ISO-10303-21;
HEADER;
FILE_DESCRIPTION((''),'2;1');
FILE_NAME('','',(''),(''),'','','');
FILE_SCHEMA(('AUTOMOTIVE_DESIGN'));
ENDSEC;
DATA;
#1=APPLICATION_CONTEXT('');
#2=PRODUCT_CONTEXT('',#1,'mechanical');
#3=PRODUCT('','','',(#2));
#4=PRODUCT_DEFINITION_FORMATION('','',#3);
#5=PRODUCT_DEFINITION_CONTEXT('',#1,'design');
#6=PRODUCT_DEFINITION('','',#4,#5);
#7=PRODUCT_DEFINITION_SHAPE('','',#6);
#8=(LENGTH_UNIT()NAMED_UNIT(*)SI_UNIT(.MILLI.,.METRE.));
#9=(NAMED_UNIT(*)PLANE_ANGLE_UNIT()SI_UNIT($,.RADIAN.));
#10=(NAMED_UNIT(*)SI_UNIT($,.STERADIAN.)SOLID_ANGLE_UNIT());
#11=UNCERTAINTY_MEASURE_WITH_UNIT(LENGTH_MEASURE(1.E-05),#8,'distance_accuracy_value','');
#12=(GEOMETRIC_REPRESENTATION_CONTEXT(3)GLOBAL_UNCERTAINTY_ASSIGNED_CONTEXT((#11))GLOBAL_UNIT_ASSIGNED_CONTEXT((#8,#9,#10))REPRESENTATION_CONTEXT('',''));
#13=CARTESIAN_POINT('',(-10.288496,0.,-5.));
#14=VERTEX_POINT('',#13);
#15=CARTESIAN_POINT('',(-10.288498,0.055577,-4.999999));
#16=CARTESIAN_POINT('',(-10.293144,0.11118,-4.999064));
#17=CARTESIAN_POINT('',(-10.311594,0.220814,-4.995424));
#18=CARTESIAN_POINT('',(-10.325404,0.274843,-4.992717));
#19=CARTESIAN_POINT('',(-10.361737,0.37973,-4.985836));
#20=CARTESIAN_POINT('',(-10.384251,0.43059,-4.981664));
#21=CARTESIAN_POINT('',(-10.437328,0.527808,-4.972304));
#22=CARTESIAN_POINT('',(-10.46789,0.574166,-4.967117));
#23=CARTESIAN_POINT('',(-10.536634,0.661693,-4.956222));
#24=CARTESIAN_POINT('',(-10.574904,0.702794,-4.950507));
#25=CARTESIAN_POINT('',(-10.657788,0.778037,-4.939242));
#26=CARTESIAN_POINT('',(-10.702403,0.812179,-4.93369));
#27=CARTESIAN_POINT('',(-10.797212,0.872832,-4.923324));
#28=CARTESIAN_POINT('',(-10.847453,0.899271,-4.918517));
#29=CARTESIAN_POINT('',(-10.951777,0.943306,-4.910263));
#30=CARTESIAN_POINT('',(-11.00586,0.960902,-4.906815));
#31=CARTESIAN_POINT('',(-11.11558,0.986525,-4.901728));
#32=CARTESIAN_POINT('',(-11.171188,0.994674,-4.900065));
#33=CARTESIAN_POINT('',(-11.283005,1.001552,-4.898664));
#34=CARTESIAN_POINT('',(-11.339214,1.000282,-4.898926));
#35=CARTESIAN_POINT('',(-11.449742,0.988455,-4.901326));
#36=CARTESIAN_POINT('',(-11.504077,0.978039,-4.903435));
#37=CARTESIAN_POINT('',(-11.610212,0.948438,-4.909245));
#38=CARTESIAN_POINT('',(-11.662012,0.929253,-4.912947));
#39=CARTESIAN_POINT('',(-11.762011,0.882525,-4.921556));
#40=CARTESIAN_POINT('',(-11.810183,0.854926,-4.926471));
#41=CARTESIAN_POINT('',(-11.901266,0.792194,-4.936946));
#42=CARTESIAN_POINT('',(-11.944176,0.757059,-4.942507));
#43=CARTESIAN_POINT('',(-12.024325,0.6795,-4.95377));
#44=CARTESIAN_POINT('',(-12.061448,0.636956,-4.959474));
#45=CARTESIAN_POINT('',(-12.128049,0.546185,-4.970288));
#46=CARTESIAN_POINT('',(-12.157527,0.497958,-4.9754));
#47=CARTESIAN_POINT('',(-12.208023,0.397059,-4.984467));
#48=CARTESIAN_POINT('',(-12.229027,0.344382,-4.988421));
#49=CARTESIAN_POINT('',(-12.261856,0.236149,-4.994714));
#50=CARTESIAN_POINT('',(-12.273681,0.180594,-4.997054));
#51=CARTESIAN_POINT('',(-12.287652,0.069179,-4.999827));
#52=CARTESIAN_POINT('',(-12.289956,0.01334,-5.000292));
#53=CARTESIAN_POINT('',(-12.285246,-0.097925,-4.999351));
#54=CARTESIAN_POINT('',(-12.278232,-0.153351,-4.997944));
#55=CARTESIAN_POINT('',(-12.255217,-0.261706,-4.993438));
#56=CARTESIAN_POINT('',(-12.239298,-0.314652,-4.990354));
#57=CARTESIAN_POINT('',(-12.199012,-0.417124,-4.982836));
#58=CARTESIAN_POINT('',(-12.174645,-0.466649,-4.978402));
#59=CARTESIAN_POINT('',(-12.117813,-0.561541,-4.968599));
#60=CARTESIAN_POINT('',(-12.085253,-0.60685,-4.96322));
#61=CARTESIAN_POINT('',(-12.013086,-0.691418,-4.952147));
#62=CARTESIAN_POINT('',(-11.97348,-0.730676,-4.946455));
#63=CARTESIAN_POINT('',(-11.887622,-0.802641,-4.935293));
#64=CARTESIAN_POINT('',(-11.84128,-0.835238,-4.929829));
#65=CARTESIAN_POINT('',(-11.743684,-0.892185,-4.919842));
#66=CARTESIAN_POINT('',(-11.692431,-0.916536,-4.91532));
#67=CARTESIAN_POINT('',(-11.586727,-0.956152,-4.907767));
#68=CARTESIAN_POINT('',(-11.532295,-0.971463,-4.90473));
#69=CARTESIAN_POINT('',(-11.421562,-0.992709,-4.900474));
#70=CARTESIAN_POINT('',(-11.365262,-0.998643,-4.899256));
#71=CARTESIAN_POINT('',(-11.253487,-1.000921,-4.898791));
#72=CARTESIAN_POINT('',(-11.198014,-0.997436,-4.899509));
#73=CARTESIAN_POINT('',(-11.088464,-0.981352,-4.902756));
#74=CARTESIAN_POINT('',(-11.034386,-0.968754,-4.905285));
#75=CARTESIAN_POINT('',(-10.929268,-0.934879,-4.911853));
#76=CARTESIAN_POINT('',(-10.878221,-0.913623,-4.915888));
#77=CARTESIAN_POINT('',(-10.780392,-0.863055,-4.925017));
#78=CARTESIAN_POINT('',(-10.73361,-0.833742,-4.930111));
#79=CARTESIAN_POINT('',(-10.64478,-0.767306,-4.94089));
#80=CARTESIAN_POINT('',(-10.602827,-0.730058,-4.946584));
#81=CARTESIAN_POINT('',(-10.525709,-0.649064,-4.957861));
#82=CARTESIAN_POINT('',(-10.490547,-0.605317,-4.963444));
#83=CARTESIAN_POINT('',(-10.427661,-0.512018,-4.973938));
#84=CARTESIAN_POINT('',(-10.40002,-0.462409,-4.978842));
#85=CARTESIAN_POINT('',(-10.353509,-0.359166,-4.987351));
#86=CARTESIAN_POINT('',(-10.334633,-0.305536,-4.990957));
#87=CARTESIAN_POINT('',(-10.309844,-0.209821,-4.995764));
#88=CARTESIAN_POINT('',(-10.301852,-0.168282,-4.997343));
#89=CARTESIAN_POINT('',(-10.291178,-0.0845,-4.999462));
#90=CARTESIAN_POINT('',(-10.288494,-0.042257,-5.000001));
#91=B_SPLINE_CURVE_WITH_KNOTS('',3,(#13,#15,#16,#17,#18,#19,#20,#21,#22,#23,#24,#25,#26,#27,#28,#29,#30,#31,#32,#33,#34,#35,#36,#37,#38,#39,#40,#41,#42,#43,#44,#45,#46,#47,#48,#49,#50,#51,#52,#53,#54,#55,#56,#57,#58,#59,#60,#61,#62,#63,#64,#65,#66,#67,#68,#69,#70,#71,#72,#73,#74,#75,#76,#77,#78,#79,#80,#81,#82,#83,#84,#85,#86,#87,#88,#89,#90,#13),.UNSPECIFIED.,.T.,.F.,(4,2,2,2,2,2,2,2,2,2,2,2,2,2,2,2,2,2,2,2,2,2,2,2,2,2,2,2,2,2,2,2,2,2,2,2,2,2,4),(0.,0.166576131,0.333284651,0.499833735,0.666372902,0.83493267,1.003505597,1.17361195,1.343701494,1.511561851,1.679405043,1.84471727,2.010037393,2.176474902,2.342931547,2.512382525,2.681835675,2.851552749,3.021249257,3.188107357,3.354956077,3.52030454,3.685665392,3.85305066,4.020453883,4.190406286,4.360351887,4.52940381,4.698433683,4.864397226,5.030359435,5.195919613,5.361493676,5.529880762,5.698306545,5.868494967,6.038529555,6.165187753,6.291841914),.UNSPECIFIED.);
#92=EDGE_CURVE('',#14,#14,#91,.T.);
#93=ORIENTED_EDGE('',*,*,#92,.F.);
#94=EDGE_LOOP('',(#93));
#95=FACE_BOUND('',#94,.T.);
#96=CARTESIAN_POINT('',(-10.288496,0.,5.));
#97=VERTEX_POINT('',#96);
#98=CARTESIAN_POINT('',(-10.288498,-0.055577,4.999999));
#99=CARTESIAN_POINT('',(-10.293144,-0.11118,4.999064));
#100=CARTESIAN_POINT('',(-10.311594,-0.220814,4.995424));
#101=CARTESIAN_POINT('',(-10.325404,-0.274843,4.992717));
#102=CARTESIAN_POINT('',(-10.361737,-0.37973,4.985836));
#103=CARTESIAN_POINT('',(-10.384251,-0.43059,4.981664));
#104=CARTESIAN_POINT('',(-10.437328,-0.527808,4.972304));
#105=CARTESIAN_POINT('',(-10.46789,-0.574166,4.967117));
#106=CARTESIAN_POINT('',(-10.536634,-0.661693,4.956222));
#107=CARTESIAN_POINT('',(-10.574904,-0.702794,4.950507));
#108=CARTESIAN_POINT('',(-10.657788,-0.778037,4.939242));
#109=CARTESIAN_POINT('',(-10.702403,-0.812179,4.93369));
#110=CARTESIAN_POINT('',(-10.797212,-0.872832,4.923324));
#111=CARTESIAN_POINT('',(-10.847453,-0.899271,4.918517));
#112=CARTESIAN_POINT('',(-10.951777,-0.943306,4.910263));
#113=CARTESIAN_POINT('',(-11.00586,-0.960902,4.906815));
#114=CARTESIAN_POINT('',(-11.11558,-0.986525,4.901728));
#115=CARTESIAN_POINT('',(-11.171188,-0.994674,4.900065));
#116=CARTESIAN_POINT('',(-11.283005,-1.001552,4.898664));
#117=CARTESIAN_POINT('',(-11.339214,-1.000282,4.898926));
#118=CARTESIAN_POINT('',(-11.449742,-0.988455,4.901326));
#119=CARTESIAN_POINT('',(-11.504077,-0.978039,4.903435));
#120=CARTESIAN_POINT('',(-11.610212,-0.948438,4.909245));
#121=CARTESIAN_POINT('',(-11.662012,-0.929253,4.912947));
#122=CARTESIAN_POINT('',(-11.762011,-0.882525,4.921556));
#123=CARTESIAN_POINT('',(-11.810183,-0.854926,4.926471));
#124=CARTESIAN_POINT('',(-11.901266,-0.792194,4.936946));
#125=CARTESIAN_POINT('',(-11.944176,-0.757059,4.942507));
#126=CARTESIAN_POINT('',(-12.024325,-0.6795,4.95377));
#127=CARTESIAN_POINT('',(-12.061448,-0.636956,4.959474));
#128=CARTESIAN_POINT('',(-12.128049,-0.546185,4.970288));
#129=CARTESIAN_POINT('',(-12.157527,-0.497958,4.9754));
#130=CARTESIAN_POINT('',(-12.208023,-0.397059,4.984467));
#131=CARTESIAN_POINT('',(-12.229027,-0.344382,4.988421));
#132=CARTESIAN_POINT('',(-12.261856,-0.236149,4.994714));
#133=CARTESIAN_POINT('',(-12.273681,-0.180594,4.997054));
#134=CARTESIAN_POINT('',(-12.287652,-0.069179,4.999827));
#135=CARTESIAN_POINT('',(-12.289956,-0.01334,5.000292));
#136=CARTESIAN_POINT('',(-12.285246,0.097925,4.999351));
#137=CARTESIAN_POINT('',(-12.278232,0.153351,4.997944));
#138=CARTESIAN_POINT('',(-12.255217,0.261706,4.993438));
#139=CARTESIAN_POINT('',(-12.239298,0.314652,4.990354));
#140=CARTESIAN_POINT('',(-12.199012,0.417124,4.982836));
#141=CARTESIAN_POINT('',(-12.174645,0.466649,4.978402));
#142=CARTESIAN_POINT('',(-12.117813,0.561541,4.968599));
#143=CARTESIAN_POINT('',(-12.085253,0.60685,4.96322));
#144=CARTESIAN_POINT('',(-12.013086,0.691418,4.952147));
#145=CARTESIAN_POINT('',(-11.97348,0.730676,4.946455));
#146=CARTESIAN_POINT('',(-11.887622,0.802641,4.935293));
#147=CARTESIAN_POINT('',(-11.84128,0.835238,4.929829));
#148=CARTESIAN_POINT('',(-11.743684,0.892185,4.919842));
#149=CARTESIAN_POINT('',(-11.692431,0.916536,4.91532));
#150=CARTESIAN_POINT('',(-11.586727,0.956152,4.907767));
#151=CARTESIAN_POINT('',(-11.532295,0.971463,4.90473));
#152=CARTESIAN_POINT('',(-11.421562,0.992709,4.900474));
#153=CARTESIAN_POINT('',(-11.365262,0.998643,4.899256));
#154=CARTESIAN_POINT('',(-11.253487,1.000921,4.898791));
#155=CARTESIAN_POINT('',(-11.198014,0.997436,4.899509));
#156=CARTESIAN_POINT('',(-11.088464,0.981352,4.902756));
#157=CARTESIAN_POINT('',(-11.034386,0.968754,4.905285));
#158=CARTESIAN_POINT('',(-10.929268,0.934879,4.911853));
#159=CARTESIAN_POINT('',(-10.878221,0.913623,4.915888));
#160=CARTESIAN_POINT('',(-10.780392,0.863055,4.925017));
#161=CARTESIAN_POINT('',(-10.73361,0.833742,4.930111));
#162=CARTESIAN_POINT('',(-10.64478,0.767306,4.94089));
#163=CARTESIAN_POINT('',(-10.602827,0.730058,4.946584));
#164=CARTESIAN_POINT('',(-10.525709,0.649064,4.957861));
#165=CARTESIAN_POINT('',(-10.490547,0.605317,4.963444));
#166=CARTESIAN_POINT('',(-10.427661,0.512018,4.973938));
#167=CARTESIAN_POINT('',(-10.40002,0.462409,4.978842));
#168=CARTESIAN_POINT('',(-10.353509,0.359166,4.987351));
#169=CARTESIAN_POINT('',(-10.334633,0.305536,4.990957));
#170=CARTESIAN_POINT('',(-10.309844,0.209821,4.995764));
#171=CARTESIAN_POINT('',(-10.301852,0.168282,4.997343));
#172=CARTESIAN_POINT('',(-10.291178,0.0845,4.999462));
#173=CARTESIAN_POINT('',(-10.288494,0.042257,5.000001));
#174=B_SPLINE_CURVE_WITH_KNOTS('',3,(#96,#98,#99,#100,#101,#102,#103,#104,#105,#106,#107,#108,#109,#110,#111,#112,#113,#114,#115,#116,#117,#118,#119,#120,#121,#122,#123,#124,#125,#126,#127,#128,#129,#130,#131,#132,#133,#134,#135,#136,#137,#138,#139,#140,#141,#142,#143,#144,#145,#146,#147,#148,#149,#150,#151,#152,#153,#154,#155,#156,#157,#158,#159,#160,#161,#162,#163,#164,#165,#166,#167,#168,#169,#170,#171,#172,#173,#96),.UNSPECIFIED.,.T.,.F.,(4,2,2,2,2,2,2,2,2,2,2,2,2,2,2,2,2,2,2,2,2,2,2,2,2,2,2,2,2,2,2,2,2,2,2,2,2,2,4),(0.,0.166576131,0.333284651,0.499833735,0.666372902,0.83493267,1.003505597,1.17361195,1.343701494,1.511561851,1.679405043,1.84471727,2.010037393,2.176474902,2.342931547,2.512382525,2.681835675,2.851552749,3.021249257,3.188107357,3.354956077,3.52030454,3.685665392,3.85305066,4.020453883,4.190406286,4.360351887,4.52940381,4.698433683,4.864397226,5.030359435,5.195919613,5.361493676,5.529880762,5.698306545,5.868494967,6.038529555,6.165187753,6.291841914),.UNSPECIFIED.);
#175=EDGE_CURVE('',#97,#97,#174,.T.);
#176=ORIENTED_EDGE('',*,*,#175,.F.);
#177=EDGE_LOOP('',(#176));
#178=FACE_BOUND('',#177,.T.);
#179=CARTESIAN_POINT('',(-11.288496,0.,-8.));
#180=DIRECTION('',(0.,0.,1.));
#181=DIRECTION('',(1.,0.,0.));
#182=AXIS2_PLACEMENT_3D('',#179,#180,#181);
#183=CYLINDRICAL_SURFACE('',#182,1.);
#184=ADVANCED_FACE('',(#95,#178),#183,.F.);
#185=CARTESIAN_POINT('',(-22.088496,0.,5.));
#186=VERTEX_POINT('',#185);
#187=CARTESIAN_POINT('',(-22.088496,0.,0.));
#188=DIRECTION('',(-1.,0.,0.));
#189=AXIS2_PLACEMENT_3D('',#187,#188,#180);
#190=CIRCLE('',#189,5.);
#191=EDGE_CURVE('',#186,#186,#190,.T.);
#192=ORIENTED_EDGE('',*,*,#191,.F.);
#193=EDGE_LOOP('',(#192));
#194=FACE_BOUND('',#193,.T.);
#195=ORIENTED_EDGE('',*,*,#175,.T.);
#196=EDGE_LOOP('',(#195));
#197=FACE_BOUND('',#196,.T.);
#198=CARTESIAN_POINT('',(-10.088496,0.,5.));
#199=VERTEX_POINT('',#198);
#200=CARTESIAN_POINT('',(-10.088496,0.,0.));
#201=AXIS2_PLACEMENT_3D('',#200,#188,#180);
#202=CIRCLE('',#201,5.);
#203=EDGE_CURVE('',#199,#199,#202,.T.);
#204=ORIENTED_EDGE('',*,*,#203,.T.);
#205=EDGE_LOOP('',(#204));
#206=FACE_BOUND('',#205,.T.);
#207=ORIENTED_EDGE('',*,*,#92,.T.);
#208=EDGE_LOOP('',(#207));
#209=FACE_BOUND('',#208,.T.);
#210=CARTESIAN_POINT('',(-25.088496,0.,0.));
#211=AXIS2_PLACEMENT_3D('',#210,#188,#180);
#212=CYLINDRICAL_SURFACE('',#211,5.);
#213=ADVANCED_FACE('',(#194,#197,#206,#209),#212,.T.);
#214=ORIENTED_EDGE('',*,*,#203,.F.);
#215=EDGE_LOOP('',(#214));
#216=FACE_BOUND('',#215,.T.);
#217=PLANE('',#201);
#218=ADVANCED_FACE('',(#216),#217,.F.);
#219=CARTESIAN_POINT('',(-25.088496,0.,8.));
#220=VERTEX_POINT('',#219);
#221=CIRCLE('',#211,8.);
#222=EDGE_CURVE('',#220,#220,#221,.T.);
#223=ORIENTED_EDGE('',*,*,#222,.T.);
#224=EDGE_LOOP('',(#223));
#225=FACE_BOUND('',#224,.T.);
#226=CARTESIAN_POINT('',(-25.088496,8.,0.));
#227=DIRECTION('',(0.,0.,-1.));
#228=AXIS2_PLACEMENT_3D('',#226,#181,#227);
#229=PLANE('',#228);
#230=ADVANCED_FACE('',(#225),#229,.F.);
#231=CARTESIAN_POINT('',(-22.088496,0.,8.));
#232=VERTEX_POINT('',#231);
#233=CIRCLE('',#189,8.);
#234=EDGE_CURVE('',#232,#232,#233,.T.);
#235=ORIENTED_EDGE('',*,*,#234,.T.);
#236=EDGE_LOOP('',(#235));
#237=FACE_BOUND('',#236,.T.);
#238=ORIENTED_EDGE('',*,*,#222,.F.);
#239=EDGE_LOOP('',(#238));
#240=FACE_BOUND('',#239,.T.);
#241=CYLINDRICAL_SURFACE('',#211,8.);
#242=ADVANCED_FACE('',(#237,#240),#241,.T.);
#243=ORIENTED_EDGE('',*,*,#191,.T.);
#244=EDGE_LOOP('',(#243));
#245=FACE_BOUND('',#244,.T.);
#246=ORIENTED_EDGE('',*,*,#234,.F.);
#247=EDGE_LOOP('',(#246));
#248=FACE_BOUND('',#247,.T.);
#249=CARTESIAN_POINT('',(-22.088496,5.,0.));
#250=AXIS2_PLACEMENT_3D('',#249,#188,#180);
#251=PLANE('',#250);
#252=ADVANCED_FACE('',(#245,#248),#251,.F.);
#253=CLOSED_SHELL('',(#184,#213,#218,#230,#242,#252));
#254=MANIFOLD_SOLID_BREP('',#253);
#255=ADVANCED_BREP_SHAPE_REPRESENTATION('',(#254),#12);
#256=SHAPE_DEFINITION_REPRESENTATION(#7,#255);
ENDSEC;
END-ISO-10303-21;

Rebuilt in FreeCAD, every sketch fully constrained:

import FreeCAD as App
import Part
import Sketcher


def add_polygon(sketch, points):
    """Adds a closed chain of lines whose ends are joined by coincident constraints."""
    first, n = sketch.GeometryCount, len(points)
    for a, b in zip(points, points[1:] + points[:1]):
        sketch.addGeometry(Part.LineSegment(App.Vector(*a, 0), App.Vector(*b, 0)), False)
    for i in range(n):
        sketch.addConstraint(Sketcher.Constraint("Coincident", first + i, 2, first + (i + 1) % n, 1))

doc = App.newDocument("Part")
params = doc.addObject("Spreadsheet::Sheet", "Params")
for row, (alias, value) in enumerate([
    ("sketch1_width", "15 mm"),
    ("sketch1_width2", "12 mm"),
    ("sketch1_height", "5 mm"),
    ("revolution_angle", "360 deg"),
    ("sketch2_diameter", "2 mm"),
], start=1):
    params.set(f"A{row}", alias)
    params.set(f"B{row}", "=" + value)
    params.setAlias(f"B{row}", alias)

body = doc.addObject("PartDesign::Body", "Body")

# Sketch on XY plane
sketch1 = body.newObject("Sketcher::SketchObject", "Sketch")
sketch1.AttachmentSupport = (doc.getObject("XY_Plane"), [""])
sketch1.MapMode = "FlatFace"
add_polygon(sketch1, [(-25.088496, 0), (-10.088496, 0), (-10.088496, 5), (-22.088496, 5), (-22.088496, 8), (-25.088496, 8)])  # lines 0-5
sketch1.addConstraint(Sketcher.Constraint("Horizontal", 0))
sketch1.addConstraint(Sketcher.Constraint("Vertical", 1))
sketch1.addConstraint(Sketcher.Constraint("Horizontal", 2))
sketch1.addConstraint(Sketcher.Constraint("Vertical", 3))
sketch1.addConstraint(Sketcher.Constraint("Horizontal", 4))
sketch1.addConstraint(Sketcher.Constraint("Vertical", 5))
sketch1.addConstraint(Sketcher.Constraint("PointOnObject", 0, 2, -1))
sketch1.addConstraint(Sketcher.Constraint("Equal", 4, 3))
sketch1.addConstraint(Sketcher.Constraint("DistanceX", 0, 1, 0, 2, 15.0))
sketch1.addConstraint(Sketcher.Constraint("DistanceX", 2, 2, 2, 1, 12.0))
sketch1.addConstraint(Sketcher.Constraint("DistanceY", 1, 1, 1, 2, 5.0))
sketch1.addConstraint(Sketcher.Constraint("DistanceX", 0, 2, -1, 1, 10.088496))
sketch1.setExpression("Constraints[14]", "Params.sketch1_width")
sketch1.setExpression("Constraints[15]", "Params.sketch1_width2")
sketch1.setExpression("Constraints[16]", "Params.sketch1_height")
revolution = body.newObject("PartDesign::Revolution", "Revolution")
revolution.Profile = sketch1
revolution.ReferenceAxis = (sketch1, ["H_Axis"])
revolution.setExpression("Angle", "Params.revolution_angle")

# Sketch on XY plane
sketch2 = body.newObject("Sketcher::SketchObject", "Sketch001")
sketch2.AttachmentSupport = (doc.getObject("XY_Plane"), [""])
sketch2.MapMode = "FlatFace"
sketch2.addGeometry(Part.Circle(App.Vector(-11.288496, 0, 0), App.Vector(0, 0, 1), 1), False)
sketch2.addConstraint(Sketcher.Constraint("PointOnObject", 0, 3, -1))
sketch2.addConstraint(Sketcher.Constraint("Diameter", 0, 2.0))
sketch2.addConstraint(Sketcher.Constraint("DistanceX", 0, 3, -1, 1, 11.288496))
sketch2.setExpression("Constraints[1]", "Params.sketch2_diameter")
pocket1 = body.newObject("PartDesign::Pocket", "Pocket")
pocket1.Profile = sketch2
pocket1.Type = "ThroughAll"
pocket1.Midplane = True

doc.recompute()
